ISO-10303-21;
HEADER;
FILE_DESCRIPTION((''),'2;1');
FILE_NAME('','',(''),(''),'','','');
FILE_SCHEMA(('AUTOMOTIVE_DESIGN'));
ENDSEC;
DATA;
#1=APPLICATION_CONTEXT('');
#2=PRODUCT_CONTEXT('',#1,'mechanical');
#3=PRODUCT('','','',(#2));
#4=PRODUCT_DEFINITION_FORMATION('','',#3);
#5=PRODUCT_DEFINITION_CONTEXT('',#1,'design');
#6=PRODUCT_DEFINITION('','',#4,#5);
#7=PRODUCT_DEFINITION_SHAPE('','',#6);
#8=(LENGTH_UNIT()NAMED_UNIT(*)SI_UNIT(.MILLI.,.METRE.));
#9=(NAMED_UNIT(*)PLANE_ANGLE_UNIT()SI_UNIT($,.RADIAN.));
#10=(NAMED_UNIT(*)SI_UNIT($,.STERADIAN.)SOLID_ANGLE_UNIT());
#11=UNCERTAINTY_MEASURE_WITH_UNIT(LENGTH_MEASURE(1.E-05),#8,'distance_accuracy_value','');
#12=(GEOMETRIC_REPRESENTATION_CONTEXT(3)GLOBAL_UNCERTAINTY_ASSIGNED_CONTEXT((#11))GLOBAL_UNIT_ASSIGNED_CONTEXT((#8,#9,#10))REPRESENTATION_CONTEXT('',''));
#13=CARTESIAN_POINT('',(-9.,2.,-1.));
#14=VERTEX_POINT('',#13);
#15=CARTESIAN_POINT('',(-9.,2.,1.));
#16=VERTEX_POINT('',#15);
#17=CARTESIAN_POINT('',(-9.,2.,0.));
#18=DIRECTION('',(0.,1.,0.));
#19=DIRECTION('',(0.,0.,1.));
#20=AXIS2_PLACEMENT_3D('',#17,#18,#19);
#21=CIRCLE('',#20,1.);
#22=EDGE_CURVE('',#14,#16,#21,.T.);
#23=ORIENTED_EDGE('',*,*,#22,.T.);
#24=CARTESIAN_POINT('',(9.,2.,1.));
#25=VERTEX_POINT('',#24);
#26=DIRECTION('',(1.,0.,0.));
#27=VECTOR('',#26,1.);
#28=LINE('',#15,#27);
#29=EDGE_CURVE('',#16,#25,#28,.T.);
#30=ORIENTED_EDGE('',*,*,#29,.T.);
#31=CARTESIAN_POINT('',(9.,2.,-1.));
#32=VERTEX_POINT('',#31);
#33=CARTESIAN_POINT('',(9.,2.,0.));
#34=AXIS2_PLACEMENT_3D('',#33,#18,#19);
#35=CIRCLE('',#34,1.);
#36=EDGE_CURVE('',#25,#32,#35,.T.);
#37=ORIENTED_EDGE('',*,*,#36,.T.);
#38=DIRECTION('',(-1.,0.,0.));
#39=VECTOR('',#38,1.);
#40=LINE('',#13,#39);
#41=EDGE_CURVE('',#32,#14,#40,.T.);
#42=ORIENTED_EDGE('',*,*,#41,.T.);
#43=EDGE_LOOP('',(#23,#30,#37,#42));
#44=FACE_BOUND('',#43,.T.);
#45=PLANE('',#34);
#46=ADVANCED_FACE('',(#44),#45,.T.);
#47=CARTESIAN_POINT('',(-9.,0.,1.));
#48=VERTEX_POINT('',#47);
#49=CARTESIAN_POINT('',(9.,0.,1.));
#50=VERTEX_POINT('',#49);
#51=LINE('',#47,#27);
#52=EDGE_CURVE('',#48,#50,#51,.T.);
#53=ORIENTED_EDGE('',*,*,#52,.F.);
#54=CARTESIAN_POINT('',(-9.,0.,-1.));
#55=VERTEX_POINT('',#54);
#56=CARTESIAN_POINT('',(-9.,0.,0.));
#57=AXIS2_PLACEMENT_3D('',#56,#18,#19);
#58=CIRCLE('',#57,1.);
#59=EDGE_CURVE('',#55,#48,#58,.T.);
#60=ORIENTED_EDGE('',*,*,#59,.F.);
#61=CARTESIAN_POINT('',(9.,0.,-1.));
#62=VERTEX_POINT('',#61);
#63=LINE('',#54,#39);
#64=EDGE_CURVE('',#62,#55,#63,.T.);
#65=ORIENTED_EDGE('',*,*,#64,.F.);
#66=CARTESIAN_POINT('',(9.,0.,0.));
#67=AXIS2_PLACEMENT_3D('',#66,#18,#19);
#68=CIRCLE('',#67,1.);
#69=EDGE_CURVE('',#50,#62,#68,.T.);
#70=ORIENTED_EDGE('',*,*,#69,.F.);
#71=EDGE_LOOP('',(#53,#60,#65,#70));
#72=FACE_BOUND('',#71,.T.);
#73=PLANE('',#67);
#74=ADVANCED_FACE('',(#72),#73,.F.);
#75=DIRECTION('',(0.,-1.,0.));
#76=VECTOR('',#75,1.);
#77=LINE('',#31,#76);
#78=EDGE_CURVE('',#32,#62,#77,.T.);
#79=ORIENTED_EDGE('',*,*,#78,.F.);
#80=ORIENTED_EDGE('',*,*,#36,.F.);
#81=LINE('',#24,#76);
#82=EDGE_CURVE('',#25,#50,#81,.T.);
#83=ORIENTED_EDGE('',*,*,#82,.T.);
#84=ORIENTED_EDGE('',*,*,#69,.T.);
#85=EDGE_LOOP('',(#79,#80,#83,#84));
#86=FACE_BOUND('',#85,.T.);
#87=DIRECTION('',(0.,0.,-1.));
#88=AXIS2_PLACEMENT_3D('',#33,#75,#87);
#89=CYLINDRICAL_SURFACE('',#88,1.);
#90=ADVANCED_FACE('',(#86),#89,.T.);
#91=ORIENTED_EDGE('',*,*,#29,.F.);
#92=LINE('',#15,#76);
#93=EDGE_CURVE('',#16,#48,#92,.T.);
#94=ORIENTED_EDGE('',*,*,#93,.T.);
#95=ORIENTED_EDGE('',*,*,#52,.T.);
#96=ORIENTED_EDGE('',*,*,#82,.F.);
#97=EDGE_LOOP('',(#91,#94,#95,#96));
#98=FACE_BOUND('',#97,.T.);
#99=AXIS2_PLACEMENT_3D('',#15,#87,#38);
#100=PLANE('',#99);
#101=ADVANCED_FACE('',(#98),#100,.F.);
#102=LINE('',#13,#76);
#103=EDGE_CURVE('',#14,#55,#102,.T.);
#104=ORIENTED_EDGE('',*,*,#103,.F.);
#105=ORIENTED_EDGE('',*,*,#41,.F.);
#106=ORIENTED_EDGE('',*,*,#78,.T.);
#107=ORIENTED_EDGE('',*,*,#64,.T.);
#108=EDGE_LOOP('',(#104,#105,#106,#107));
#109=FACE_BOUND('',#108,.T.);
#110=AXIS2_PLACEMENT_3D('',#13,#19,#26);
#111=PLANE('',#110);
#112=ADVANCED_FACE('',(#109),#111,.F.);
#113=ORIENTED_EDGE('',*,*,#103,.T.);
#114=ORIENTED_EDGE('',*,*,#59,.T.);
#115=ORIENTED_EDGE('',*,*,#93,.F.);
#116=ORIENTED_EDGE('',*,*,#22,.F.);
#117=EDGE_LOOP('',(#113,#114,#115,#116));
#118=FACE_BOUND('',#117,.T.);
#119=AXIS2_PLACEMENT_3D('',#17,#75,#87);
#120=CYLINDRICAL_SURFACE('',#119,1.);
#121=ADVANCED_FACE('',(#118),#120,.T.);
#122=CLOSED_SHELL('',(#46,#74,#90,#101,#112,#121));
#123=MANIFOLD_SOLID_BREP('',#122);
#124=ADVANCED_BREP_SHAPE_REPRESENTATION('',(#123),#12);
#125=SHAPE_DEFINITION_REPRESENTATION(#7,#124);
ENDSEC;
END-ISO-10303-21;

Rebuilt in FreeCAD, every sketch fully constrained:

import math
import FreeCAD as App
import Part
import Sketcher
from FreeCAD import Vector

doc = App.newDocument("Part")
body = doc.addObject("PartDesign::Body", "Body")

# Sketch on XZ plane
sketch1 = body.newObject("Sketcher::SketchObject", "Sketch")
sketch1.AttachmentSupport = (doc.getObject("XZ_Plane"), [""])
sketch1.MapMode = "FlatFace"
sketch1.addGeometry([
    Part.LineSegment(Vector(9, -1, 0), Vector(-9, -1, 0)),
    Part.ArcOfCircle(Part.Circle(Vector(-9, 0, 0), Vector(0, 0, 1), 1), math.radians(90), math.radians(270)),
    Part.LineSegment(Vector(-9, 1, 0), Vector(9, 1, 0)),
    Part.ArcOfCircle(Part.Circle(Vector(9, 0, 0), Vector(0, 0, 1), 1), math.radians(-90), math.radians(90)),
], False)
sketch1.addConstraint([
    Sketcher.Constraint("Tangent", 0, 2, 1, 2),
    Sketcher.Constraint("Tangent", 1, 1, 2, 1),
    Sketcher.Constraint("Tangent", 2, 2, 3, 2),
    Sketcher.Constraint("Tangent", 3, 1, 0, 1),
    Sketcher.Constraint("Horizontal", 0),
    Sketcher.Constraint("Horizontal", 2),
    Sketcher.Constraint("Symmetric", 1, 3, 3, 3, -1, 1),
    Sketcher.Constraint("Radius", 1, 1.0),
    Sketcher.Constraint("DistanceX", 0, 2, 0, 1, 18.0),
])
pad1 = body.newObject("PartDesign::Pad", "Pad")
pad1.Profile = sketch1
pad1.Length = 2
pad1.Reversed = True

doc.recompute()
